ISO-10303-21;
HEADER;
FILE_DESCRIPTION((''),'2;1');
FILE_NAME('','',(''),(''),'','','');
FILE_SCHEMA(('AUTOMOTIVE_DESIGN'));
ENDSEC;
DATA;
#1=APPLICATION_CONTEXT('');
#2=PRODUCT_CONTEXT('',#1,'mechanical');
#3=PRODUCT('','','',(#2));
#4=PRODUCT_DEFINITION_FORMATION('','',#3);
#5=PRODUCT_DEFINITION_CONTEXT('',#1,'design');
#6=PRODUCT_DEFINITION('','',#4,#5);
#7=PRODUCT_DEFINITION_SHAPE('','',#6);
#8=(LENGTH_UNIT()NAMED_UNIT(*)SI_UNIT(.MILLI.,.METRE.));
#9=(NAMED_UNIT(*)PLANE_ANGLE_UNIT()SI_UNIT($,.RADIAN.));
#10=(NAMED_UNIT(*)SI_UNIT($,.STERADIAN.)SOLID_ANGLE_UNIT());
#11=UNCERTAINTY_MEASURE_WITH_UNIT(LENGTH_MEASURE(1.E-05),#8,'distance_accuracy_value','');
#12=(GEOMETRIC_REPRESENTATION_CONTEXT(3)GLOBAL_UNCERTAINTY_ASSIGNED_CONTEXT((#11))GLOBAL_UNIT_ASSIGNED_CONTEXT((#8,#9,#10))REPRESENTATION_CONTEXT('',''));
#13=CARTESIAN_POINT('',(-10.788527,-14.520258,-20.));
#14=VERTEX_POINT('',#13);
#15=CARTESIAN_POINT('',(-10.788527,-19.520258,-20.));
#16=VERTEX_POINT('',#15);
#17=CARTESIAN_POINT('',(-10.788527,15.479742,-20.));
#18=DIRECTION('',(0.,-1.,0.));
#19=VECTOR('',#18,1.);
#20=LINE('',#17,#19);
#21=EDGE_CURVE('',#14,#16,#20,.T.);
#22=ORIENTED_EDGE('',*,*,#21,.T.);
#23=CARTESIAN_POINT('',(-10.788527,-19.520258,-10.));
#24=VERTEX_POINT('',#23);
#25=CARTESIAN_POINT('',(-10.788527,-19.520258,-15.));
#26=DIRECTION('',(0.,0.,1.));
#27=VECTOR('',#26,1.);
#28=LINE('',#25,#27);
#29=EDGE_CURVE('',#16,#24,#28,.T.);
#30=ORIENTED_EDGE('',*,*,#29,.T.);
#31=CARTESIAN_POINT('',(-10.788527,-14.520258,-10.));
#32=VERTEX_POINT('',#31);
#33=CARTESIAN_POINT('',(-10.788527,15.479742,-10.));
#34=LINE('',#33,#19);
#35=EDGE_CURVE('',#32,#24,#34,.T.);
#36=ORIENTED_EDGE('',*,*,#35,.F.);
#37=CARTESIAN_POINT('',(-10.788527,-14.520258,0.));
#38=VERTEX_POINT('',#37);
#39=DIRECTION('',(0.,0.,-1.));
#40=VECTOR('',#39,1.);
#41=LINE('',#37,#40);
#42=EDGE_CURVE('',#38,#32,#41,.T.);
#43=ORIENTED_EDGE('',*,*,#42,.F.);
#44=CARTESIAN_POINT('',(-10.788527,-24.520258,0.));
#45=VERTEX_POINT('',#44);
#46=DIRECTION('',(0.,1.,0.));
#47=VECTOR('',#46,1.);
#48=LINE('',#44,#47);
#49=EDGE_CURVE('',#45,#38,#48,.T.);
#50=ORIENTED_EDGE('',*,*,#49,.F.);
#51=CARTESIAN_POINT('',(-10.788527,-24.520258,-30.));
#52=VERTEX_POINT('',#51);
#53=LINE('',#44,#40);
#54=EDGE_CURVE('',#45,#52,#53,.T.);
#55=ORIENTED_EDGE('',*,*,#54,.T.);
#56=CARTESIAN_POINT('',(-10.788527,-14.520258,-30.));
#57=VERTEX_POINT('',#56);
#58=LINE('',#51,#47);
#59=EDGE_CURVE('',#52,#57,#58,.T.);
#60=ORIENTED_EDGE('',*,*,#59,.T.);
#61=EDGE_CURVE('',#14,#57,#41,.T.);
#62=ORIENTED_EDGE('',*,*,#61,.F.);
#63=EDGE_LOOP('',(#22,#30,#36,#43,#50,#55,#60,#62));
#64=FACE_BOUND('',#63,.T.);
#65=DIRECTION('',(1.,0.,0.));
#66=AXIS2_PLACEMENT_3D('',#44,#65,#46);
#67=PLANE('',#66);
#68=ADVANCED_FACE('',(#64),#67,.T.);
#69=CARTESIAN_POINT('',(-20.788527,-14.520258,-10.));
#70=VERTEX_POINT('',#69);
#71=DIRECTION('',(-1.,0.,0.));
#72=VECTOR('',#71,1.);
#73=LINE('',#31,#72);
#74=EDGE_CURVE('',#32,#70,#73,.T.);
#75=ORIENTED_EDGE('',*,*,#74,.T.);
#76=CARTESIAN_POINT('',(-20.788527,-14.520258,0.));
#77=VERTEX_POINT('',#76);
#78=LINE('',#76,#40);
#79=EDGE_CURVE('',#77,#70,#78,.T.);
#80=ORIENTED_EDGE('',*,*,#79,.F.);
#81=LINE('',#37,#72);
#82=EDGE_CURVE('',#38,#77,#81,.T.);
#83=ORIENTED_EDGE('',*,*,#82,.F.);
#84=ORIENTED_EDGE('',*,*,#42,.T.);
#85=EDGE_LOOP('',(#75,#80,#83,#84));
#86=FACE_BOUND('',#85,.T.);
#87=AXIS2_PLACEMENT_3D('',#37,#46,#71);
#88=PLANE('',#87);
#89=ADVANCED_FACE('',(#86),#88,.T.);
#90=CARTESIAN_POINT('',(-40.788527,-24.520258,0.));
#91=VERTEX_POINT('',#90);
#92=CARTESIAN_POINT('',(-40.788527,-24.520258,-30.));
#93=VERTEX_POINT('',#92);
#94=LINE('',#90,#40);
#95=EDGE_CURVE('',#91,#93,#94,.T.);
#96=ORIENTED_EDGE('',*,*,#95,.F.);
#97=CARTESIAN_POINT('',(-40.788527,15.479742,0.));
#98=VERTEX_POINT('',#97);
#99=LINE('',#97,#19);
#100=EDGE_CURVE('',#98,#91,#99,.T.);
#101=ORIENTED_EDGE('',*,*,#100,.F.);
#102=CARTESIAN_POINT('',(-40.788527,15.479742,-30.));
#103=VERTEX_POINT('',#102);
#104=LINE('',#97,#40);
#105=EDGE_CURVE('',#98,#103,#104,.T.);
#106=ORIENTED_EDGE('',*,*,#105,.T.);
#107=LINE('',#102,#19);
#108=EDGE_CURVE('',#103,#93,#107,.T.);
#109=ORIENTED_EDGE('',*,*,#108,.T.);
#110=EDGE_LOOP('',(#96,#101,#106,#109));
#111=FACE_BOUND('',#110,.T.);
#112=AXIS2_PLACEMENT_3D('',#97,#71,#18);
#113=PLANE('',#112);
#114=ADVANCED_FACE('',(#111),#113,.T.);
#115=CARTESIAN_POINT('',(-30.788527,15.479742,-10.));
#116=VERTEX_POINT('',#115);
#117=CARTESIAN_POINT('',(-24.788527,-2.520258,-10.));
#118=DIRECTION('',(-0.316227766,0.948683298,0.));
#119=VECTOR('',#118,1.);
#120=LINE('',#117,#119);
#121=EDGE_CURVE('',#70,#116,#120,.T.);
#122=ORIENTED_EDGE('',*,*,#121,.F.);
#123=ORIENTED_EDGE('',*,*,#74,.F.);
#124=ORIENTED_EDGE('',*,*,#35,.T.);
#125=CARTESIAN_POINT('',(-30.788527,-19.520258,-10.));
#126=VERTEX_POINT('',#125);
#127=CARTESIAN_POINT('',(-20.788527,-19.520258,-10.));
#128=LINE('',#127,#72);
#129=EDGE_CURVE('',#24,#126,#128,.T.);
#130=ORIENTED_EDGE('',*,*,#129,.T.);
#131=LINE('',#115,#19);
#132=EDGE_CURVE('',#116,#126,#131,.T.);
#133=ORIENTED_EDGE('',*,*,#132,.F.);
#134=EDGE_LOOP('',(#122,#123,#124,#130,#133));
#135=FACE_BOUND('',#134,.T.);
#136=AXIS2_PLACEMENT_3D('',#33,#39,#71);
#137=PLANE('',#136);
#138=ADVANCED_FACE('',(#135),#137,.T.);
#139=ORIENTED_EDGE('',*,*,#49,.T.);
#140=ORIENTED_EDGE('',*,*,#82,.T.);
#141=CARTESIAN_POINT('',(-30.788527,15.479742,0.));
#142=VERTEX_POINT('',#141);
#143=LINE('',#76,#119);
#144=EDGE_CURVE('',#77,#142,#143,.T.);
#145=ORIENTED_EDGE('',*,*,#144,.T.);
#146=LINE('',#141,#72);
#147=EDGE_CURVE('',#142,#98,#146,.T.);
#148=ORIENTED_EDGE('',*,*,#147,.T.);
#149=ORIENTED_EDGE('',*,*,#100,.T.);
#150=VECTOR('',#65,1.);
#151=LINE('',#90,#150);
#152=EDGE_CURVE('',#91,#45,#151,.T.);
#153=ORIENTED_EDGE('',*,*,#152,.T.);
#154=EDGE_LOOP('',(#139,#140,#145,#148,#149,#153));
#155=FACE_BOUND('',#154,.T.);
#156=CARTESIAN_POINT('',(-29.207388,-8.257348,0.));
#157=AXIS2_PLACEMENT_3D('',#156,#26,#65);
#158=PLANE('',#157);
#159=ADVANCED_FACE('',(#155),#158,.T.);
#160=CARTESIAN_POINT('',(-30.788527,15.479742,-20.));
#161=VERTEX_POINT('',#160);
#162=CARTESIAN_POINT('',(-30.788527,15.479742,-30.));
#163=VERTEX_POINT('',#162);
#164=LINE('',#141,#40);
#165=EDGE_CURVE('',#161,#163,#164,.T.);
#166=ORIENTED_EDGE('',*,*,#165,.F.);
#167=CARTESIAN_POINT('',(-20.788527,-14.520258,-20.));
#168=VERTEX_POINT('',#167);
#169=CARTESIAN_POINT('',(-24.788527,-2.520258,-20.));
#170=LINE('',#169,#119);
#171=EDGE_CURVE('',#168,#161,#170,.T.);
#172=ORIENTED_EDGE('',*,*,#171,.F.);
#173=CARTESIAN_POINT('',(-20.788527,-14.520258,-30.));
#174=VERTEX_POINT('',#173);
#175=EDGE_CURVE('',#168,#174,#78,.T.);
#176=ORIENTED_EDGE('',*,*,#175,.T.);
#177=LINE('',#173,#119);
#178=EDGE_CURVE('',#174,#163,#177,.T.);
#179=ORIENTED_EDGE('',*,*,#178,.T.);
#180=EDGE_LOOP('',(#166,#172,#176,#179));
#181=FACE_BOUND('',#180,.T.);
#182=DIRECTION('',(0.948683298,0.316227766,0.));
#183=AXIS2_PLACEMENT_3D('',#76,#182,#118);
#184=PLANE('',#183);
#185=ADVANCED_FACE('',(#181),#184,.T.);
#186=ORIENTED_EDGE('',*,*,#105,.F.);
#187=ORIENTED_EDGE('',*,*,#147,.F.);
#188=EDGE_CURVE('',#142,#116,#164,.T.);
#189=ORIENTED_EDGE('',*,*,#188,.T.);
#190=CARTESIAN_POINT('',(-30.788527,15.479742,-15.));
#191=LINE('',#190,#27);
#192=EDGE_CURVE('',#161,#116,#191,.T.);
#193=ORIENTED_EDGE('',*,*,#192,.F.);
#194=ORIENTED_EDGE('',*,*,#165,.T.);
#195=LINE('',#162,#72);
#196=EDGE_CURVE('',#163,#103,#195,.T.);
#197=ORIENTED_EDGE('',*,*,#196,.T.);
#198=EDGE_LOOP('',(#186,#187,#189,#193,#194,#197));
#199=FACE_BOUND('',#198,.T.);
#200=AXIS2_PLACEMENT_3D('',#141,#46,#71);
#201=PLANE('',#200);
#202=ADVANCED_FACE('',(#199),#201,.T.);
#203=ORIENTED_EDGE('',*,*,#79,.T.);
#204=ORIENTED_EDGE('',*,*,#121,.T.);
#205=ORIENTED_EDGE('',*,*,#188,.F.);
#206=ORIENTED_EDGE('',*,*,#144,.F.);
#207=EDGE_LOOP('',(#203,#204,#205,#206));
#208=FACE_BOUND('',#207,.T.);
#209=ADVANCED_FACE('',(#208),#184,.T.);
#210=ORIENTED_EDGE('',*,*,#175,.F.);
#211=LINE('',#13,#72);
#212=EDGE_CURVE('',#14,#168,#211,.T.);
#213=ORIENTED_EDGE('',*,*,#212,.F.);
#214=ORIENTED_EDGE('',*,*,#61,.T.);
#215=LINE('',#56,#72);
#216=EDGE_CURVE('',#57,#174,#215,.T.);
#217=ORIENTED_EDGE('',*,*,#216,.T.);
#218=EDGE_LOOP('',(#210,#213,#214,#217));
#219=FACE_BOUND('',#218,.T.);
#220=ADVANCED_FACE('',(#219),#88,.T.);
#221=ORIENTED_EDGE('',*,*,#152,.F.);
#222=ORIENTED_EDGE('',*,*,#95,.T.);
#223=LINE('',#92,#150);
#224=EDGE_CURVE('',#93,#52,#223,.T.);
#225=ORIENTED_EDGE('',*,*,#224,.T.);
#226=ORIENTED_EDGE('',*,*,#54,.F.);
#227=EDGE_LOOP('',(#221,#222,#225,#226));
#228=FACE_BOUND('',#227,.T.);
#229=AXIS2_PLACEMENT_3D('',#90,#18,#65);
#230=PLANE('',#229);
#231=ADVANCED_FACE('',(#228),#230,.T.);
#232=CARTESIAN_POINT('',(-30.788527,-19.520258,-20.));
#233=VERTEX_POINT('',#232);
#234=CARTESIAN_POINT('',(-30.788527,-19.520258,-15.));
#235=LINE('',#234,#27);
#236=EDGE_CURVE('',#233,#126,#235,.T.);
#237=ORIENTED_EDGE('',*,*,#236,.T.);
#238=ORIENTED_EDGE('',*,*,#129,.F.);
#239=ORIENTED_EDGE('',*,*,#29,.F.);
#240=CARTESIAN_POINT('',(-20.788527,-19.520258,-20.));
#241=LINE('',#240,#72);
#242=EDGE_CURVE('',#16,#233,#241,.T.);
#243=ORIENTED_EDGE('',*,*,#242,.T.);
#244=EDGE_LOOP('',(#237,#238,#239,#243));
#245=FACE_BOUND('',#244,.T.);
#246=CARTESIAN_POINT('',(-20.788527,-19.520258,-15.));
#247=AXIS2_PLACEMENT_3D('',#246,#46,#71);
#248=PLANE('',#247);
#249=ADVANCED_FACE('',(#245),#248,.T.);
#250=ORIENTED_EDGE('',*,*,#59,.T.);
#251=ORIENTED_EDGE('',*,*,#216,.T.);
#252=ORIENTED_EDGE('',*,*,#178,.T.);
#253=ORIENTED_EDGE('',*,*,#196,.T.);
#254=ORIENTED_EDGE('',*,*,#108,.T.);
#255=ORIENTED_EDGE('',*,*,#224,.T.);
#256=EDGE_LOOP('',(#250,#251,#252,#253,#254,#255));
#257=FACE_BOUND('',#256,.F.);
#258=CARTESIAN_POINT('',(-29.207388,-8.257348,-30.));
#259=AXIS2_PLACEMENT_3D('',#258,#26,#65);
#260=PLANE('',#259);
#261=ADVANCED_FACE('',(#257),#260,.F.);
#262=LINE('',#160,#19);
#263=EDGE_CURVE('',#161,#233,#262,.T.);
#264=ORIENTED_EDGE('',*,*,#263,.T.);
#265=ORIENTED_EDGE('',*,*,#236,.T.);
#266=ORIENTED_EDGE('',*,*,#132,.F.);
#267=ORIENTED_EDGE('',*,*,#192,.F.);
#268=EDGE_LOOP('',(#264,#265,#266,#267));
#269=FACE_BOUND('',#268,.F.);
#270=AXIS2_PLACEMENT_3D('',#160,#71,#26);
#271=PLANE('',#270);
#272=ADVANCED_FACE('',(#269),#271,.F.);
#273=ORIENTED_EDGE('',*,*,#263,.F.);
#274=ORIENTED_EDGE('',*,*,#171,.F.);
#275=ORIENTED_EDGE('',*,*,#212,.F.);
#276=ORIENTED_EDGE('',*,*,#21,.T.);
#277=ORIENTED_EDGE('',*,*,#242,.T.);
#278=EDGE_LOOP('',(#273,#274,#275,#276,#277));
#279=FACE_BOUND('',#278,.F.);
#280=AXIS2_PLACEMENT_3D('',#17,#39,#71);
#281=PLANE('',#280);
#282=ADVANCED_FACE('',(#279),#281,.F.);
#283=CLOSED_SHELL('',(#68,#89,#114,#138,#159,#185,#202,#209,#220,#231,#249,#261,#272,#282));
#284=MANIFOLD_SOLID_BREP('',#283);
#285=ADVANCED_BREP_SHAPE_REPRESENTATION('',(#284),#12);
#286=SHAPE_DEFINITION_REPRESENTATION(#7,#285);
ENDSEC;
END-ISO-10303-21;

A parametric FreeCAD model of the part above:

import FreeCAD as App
import Part
import Sketcher

V = App.Vector


def add_polygon(sketch, points):
    """Adds a closed chain of lines whose ends are joined by coincident constraints."""
    first, n = sketch.GeometryCount, len(points)
    for a, b in zip(points, points[1:] + points[:1]):
        sketch.addGeometry(Part.LineSegment(App.Vector(*a, 0), App.Vector(*b, 0)), False)
    for i in range(n):
        sketch.addConstraint(Sketcher.Constraint("Coincident", first + i, 2, first + (i + 1) % n, 1))

doc = App.newDocument("Part")
body = doc.addObject("PartDesign::Body", "Body")

sketch1 = doc.addObject("Sketcher::SketchObject", "Sketch")
body.addObject(sketch1)
sketch1.AttachmentSupport = (doc.XY_Plane, [""])
sketch1.MapMode = "FlatFace"
add_polygon(sketch1, [(-41, 15), (-41, -25), (-11, -25), (-11, -15), (-21, -15), (-31, 15)])
sketch1.addConstraint([
    Sketcher.Constraint("Vertical", 0),
    Sketcher.Constraint("Horizontal", 1),
    Sketcher.Constraint("Vertical", 2),
    Sketcher.Constraint("Horizontal", 3),
    Sketcher.Constraint("Horizontal", 5),
    Sketcher.Constraint("Equal", 3, 5),
    Sketcher.Constraint("Equal", 5, 2),
    Sketcher.Constraint("DistanceX", 1, 1, 1, 2, 30.0),
    Sketcher.Constraint("DistanceX", 3, 2, 3, 1, 10.0),
    Sketcher.Constraint("DistanceY", 0, 2, 0, 1, 40.0),
    Sketcher.Constraint("DistanceX", 0, 2, -1, 1, 40.788527),
    Sketcher.Constraint("DistanceY", 0, 2, -1, 1, 24.520258),
])
pad1 = doc.addObject("PartDesign::Pad", "Pad")
body.addObject(pad1)
pad1.Profile = sketch1
pad1.Length = 30
pad1.Reversed = True

sketch2 = doc.addObject("Sketcher::SketchObject", "Sketch001")
body.addObject(sketch2)
sketch2.AttachmentSupport = (doc.XZ_Plane, [""])
sketch2.MapMode = "FlatFace"
sketch2.AttachmentOffset = App.Placement(V(0, 0, -15.479742), App.Rotation())
add_polygon(sketch2, [(-11, -10), (-11, -20), (-31, -20), (-31, -10)])
sketch2.addConstraint([
    Sketcher.Constraint("Vertical", 0),
    Sketcher.Constraint("Horizontal", 1),
    Sketcher.Constraint("Vertical", 2),
    Sketcher.Constraint("Horizontal", 3),
    Sketcher.Constraint("DistanceX", 1, 2, 1, 1, 20.0),
    Sketcher.Constraint("DistanceY", 0, 2, 0, 1, 10.0),
    Sketcher.Constraint("DistanceY", 0, 2, -1, 1, 20.0),
    Sketcher.Constraint("DistanceX", 0, 2, -1, 1, 10.788527),
])
pocket1 = doc.addObject("PartDesign::Pocket", "Pocket")
body.addObject(pocket1)
pocket1.Profile = sketch2
pocket1.Length = 35
pocket1.Reversed = True

doc.recompute()
